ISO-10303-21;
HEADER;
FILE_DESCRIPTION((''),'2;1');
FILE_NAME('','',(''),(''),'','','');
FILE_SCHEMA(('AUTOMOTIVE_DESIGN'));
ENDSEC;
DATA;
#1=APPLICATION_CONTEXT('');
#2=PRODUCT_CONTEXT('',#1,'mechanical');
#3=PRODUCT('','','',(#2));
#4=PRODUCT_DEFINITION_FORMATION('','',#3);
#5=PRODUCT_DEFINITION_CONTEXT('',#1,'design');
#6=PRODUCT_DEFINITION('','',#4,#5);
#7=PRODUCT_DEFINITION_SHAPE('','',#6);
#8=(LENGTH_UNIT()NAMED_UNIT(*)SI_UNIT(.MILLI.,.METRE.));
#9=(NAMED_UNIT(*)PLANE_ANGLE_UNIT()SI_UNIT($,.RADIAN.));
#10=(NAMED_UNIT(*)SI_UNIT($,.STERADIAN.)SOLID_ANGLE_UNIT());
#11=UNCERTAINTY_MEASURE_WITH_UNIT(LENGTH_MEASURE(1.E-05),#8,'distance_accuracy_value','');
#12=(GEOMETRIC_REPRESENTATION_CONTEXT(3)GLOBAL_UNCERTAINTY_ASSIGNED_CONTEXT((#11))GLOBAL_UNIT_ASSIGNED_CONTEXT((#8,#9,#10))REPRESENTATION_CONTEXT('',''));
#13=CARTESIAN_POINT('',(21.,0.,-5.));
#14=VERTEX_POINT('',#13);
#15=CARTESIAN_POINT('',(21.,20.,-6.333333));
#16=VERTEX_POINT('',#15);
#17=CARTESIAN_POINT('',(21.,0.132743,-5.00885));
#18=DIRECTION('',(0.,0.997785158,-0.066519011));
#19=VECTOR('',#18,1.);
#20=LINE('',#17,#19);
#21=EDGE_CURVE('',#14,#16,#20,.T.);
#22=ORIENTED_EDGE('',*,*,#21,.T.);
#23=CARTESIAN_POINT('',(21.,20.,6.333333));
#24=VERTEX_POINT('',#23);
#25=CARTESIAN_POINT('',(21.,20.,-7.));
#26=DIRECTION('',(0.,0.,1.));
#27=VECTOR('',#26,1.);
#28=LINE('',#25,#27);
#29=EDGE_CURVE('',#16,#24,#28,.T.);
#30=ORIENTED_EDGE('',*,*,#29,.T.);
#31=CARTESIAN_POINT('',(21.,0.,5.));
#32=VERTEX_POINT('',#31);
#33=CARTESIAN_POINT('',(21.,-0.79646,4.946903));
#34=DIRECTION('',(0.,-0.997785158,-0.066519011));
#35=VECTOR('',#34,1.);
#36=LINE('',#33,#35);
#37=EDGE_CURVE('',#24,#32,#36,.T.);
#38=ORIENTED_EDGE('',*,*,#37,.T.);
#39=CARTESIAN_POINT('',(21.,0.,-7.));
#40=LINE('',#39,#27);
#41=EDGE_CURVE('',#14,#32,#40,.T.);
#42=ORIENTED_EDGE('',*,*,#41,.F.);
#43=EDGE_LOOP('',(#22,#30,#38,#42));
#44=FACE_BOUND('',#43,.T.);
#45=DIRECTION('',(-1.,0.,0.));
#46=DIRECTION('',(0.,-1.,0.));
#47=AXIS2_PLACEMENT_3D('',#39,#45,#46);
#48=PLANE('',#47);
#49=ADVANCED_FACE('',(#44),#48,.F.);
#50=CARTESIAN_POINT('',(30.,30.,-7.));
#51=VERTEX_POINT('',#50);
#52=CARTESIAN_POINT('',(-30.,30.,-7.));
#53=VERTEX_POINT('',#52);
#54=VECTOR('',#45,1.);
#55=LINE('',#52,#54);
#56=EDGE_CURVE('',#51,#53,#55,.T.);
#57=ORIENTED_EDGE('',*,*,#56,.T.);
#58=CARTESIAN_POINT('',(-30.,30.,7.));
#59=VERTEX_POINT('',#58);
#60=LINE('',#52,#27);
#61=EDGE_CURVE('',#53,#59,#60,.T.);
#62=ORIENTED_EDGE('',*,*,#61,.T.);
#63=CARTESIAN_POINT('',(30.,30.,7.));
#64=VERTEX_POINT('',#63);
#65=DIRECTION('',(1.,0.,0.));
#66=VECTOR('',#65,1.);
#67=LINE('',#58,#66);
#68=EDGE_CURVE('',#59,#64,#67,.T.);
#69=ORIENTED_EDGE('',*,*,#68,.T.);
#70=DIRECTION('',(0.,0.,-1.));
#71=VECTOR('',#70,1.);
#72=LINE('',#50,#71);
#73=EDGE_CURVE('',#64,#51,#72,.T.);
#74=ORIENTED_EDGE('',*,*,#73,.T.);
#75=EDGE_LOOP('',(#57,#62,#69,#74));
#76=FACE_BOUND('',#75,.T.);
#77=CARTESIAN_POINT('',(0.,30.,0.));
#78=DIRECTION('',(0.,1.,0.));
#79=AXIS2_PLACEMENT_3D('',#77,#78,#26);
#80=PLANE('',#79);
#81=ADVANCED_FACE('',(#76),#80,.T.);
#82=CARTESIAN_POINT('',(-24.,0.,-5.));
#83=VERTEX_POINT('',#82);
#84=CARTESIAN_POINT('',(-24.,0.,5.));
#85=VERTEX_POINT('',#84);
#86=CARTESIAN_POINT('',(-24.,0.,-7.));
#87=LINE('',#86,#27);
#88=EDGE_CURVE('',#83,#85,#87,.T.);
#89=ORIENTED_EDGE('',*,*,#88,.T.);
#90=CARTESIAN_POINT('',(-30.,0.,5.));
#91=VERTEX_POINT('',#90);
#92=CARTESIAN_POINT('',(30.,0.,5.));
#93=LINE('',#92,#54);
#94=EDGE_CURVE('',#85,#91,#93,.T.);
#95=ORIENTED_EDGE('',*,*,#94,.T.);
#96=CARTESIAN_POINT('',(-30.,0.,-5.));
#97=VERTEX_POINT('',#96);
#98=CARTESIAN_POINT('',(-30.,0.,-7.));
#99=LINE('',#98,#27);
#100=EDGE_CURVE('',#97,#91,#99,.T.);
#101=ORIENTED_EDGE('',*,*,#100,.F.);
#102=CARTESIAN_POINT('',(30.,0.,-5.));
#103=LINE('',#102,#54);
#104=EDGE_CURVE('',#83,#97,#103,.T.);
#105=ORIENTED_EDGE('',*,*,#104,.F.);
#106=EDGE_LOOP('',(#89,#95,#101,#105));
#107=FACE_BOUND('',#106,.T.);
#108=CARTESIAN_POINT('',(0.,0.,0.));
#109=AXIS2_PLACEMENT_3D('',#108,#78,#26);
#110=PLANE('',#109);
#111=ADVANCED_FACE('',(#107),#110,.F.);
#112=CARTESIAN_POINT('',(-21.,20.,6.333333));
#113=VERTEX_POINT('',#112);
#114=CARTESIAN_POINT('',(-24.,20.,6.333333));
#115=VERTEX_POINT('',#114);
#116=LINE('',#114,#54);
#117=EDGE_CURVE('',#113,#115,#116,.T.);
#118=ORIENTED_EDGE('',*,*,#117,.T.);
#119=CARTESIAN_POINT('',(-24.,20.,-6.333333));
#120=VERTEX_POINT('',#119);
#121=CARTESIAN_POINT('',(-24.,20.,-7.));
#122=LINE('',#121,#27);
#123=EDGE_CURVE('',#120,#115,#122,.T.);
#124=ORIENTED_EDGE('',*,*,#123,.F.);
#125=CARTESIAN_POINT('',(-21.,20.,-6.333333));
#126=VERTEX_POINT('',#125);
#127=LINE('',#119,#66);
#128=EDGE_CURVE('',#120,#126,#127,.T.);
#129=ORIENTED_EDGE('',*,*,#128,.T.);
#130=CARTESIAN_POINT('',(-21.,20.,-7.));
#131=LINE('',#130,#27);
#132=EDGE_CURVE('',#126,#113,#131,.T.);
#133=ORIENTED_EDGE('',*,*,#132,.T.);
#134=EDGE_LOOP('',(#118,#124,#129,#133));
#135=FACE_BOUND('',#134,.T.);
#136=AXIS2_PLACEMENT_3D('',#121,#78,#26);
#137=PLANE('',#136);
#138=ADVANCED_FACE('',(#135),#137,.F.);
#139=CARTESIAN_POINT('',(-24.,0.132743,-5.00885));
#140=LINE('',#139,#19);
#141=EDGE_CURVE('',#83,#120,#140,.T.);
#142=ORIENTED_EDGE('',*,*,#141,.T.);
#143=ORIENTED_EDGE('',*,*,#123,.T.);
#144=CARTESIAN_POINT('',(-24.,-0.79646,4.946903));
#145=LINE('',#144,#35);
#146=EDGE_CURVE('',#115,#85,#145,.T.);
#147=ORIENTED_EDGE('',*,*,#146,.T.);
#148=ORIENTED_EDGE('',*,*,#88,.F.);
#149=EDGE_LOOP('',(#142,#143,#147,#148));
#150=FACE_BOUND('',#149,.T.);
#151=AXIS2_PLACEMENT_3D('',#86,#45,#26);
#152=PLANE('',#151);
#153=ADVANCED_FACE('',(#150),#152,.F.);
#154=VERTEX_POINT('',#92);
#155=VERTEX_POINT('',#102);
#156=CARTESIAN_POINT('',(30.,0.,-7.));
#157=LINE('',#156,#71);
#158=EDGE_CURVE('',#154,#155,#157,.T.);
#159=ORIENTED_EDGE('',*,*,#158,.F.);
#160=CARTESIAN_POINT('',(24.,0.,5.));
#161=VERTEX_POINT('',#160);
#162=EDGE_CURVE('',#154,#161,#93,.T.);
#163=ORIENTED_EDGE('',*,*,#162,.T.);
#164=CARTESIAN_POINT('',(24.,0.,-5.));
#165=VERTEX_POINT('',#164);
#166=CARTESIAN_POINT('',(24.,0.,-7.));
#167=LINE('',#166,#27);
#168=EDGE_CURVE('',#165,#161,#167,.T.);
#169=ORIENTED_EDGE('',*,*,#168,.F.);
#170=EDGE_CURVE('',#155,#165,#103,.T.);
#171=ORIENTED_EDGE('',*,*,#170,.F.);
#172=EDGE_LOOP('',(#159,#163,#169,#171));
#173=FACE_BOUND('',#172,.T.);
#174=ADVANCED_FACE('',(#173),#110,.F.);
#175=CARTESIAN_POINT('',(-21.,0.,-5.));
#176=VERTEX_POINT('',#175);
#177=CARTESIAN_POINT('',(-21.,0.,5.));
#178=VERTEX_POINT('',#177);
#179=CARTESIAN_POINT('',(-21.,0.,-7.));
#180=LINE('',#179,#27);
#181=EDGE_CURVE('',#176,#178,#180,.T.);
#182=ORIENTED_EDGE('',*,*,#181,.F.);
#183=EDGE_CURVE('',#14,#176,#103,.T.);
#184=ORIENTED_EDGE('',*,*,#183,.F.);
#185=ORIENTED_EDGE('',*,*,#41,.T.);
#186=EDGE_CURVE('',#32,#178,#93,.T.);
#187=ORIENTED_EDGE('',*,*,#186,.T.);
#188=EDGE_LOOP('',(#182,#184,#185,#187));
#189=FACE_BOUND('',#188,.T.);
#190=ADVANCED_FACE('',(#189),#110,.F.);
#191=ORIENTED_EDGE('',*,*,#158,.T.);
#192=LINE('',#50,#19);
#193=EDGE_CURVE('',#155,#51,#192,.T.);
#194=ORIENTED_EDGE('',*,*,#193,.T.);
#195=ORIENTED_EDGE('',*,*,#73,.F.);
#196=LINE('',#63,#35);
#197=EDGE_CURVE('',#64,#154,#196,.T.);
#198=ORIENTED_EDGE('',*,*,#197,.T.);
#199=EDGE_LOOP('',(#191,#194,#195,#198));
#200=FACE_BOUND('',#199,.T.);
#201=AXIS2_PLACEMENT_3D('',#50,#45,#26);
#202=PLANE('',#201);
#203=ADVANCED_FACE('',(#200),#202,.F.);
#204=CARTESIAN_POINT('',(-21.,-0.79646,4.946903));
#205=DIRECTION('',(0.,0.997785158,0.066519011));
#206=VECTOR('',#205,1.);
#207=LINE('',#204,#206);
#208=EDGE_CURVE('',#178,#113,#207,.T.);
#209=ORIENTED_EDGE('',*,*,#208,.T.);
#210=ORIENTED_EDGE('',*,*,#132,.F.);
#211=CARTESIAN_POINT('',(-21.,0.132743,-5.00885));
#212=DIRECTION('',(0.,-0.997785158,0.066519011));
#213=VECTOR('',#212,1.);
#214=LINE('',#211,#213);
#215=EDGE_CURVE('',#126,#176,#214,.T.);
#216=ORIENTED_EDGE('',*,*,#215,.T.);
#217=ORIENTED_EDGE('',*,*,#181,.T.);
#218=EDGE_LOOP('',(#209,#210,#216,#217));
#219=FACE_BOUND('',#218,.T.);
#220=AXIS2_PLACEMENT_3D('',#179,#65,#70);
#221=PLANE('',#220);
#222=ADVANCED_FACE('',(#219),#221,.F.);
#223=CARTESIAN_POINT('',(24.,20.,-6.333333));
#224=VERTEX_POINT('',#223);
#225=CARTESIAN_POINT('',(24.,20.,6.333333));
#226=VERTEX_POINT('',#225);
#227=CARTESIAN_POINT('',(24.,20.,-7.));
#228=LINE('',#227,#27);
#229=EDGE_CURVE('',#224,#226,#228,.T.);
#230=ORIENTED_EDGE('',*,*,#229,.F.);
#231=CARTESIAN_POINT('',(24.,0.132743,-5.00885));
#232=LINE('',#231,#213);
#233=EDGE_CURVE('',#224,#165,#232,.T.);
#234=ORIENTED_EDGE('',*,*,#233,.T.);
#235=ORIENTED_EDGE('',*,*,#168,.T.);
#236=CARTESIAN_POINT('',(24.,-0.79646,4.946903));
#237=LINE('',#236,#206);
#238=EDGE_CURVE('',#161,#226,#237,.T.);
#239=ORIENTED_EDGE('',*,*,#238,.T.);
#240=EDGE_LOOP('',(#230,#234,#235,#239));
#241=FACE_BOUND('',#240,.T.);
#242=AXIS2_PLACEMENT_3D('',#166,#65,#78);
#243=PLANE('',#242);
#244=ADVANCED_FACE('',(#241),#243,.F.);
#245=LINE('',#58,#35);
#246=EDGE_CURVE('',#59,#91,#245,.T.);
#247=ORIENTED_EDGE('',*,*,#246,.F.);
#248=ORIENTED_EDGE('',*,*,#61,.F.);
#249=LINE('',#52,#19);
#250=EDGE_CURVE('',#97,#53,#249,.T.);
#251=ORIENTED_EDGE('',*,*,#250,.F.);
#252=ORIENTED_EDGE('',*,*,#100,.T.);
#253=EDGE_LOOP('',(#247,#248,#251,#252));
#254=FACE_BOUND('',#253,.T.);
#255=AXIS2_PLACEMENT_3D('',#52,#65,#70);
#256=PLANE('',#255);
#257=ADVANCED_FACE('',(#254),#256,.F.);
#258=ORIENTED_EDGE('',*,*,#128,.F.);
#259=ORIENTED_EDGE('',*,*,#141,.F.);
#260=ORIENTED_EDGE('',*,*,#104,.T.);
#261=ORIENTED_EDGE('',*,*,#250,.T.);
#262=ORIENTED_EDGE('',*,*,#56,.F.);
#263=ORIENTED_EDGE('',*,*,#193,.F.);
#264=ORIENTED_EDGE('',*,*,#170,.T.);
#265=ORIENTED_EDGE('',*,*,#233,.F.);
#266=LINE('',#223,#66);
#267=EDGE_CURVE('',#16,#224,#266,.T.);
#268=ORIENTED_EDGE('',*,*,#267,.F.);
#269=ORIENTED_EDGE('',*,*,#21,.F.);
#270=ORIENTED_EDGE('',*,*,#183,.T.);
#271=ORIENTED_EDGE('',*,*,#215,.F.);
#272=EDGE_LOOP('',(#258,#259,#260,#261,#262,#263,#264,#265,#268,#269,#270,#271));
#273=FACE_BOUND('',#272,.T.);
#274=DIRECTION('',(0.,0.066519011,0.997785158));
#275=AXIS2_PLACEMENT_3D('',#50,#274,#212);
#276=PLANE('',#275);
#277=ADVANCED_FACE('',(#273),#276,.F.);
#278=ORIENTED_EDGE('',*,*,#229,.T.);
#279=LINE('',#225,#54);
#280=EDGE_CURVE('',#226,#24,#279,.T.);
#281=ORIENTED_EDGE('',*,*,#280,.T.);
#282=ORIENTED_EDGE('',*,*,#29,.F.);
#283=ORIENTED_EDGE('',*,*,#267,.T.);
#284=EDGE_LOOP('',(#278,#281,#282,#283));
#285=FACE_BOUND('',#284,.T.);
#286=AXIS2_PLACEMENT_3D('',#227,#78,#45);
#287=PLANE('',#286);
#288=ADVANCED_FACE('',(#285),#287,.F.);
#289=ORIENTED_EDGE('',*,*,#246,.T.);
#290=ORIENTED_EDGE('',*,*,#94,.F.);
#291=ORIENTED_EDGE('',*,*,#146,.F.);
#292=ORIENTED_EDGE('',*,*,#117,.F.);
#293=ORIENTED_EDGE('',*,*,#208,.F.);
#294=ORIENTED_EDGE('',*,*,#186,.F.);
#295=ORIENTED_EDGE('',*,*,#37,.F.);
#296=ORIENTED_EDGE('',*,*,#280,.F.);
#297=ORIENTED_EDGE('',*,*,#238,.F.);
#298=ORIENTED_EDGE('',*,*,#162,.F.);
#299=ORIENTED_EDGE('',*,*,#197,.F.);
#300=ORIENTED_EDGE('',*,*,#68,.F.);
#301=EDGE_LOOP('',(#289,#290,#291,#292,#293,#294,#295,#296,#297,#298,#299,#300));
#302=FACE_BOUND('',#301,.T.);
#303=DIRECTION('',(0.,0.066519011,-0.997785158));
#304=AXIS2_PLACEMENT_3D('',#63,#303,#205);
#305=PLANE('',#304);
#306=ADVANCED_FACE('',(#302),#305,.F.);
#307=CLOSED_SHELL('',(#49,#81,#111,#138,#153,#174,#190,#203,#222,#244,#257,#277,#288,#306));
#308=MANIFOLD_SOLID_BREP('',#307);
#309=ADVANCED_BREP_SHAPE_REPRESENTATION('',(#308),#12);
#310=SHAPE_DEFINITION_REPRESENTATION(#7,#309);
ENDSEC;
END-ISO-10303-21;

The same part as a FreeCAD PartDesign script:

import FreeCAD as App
import Part
import Sketcher
Q = App.Units.Quantity

doc = App.newDocument("Part")
body = doc.addObject("PartDesign::Body", "Body")

sketch1 = body.newObject("Sketcher::SketchObject", "Sketch")
sketch1.AttachmentSupport = (doc.getObject("XZ_Plane"), [""])
sketch1.MapMode = "FlatFace"
sketch1.addGeometry([
    Part.LineSegment(App.Vector(-30, -7, 0), App.Vector(-30, 7, 0)),
    Part.LineSegment(App.Vector(-30, 7, 0), App.Vector(30, 7, 0)),
    Part.LineSegment(App.Vector(30, 7, 0), App.Vector(30, -7, 0)),
    Part.LineSegment(App.Vector(30, -7, 0), App.Vector(-30, -7, 0)),
], False)
sketch1.addConstraint([
    Sketcher.Constraint("Coincident", 0, 2, 1, 1),
    Sketcher.Constraint("Coincident", 1, 2, 2, 1),
    Sketcher.Constraint("Coincident", 2, 2, 3, 1),
    Sketcher.Constraint("Coincident", 3, 2, 0, 1),
    Sketcher.Constraint("Vertical", 0),
    Sketcher.Constraint("Horizontal", 1),
    Sketcher.Constraint("Vertical", 2),
    Sketcher.Constraint("Horizontal", 3),
    Sketcher.Constraint("Symmetric", 0, 2, 2, 2, -1, 1),
    Sketcher.Constraint("DistanceX", 1, 1, 1, 2, Q("60 mm")),
    Sketcher.Constraint("DistanceY", 0, 1, 0, 2, Q("14 mm")),
])
pad1 = body.newObject("PartDesign::Pad", "Pad")
pad1.Profile = sketch1
pad1.Length = 30
pad1.Reversed = True

sketch2 = body.newObject("Sketcher::SketchObject", "Sketch001")
sketch2.AttachmentSupport = (doc.getObject("XY_Plane"), [""])
sketch2.MapMode = "FlatFace"
sketch2.AttachmentOffset = App.Placement(App.Vector(0, 0, 7), App.Rotation())
sketch2.addGeometry([
    Part.LineSegment(App.Vector(-24, 20, 0), App.Vector(-24, 0, 0)),
    Part.LineSegment(App.Vector(-24, 0, 0), App.Vector(-21, 0, 0)),
    Part.LineSegment(App.Vector(-21, 0, 0), App.Vector(-21, 20, 0)),
    Part.LineSegment(App.Vector(-21, 20, 0), App.Vector(-24, 20, 0)),
    Part.LineSegment(App.Vector(21, 20, 0), App.Vector(21, 0, 0)),
    Part.LineSegment(App.Vector(21, 0, 0), App.Vector(24, 0, 0)),
    Part.LineSegment(App.Vector(24, 0, 0), App.Vector(24, 20, 0)),
    Part.LineSegment(App.Vector(24, 20, 0), App.Vector(21, 20, 0)),
], False)
sketch2.addConstraint([
    Sketcher.Constraint("Coincident", 0, 2, 1, 1),
    Sketcher.Constraint("Coincident", 1, 2, 2, 1),
    Sketcher.Constraint("Coincident", 2, 2, 3, 1),
    Sketcher.Constraint("Coincident", 3, 2, 0, 1),
    Sketcher.Constraint("Coincident", 4, 2, 5, 1),
    Sketcher.Constraint("Coincident", 5, 2, 6, 1),
    Sketcher.Constraint("Coincident", 6, 2, 7, 1),
    Sketcher.Constraint("Coincident", 7, 2, 4, 1),
    Sketcher.Constraint("Vertical", 0),
    Sketcher.Constraint("Horizontal", 1),
    Sketcher.Constraint("Vertical", 2),
    Sketcher.Constraint("Horizontal", 3),
    Sketcher.Constraint("Vertical", 4),
    Sketcher.Constraint("Horizontal", 5),
    Sketcher.Constraint("Vertical", 6),
    Sketcher.Constraint("Horizontal", 7),
    Sketcher.Constraint("Symmetric", 1, 2, 4, 2, -1, 1),
    Sketcher.Constraint("Symmetric", 0, 2, 5, 2, -2),
    Sketcher.Constraint("Horizontal", 3, 2, 6, 2),
    Sketcher.Constraint("DistanceX", 1, 1, 1, 2, Q("3 mm")),
    Sketcher.Constraint("DistanceY", 0, 2, 0, 1, Q("20 mm")),
    Sketcher.Constraint("DistanceX", 0, 2, -1, 1, Q("24 mm")),
])
pocket1 = body.newObject("PartDesign::Pocket", "Pocket")
pocket1.Profile = sketch2
pocket1.Type = "ThroughAll"

sketch3 = body.newObject("Sketcher::SketchObject", "Sketch002")
sketch3.AttachmentSupport = (doc.getObject("YZ_Plane"), [""])
sketch3.MapMode = "FlatFace"
sketch3.AttachmentOffset = App.Placement(App.Vector(0, 0, -30), App.Rotation())
sketch3.addGeometry([
    Part.LineSegment(App.Vector(0, -5, 0), App.Vector(30, -7, 0)),
    Part.LineSegment(App.Vector(30, -7, 0), App.Vector(0, -7, 0)),
    Part.LineSegment(App.Vector(0, -7, 0), App.Vector(0, -5, 0)),
    Part.LineSegment(App.Vector(30, 7, 0), App.Vector(0, 5, 0)),
    Part.LineSegment(App.Vector(0, 5, 0), App.Vector(0, 7, 0)),
    Part.LineSegment(App.Vector(0, 7, 0), App.Vector(30, 7, 0)),
], False)
sketch3.addConstraint([
    Sketcher.Constraint("Coincident", 0, 2, 1, 1),
    Sketcher.Constraint("Coincident", 1, 2, 2, 1),
    Sketcher.Constraint("Coincident", 2, 2, 0, 1),
    Sketcher.Constraint("Coincident", 3, 2, 4, 1),
    Sketcher.Constraint("Coincident", 4, 2, 5, 1),
    Sketcher.Constraint("Coincident", 5, 2, 3, 1),
    Sketcher.Constraint("Horizontal", 1),
    Sketcher.Constraint("Vertical", 2),
    Sketcher.Constraint("Vertical", 4),
    Sketcher.Constraint("Horizontal", 5),
    Sketcher.Constraint("Symmetric", 2, 2, 3, 2, -1, 1),
    Sketcher.Constraint("Symmetric", 1, 2, 4, 2, -1),
    Sketcher.Constraint("Vertical", 0, 2, 5, 2),
    Sketcher.Constraint("DistanceX", 1, 2, 1, 1, Q("30 mm")),
    Sketcher.Constraint("DistanceY", 2, 1, 2, 2, Q("2 mm")),
    Sketcher.Constraint("DistanceY", 0, 2, -1, 1, Q("7 mm")),
])
pocket2 = body.newObject("PartDesign::Pocket", "Pocket001")
pocket2.Profile = sketch3
pocket2.Type = "ThroughAll"
pocket2.Reversed = True

doc.recompute()
